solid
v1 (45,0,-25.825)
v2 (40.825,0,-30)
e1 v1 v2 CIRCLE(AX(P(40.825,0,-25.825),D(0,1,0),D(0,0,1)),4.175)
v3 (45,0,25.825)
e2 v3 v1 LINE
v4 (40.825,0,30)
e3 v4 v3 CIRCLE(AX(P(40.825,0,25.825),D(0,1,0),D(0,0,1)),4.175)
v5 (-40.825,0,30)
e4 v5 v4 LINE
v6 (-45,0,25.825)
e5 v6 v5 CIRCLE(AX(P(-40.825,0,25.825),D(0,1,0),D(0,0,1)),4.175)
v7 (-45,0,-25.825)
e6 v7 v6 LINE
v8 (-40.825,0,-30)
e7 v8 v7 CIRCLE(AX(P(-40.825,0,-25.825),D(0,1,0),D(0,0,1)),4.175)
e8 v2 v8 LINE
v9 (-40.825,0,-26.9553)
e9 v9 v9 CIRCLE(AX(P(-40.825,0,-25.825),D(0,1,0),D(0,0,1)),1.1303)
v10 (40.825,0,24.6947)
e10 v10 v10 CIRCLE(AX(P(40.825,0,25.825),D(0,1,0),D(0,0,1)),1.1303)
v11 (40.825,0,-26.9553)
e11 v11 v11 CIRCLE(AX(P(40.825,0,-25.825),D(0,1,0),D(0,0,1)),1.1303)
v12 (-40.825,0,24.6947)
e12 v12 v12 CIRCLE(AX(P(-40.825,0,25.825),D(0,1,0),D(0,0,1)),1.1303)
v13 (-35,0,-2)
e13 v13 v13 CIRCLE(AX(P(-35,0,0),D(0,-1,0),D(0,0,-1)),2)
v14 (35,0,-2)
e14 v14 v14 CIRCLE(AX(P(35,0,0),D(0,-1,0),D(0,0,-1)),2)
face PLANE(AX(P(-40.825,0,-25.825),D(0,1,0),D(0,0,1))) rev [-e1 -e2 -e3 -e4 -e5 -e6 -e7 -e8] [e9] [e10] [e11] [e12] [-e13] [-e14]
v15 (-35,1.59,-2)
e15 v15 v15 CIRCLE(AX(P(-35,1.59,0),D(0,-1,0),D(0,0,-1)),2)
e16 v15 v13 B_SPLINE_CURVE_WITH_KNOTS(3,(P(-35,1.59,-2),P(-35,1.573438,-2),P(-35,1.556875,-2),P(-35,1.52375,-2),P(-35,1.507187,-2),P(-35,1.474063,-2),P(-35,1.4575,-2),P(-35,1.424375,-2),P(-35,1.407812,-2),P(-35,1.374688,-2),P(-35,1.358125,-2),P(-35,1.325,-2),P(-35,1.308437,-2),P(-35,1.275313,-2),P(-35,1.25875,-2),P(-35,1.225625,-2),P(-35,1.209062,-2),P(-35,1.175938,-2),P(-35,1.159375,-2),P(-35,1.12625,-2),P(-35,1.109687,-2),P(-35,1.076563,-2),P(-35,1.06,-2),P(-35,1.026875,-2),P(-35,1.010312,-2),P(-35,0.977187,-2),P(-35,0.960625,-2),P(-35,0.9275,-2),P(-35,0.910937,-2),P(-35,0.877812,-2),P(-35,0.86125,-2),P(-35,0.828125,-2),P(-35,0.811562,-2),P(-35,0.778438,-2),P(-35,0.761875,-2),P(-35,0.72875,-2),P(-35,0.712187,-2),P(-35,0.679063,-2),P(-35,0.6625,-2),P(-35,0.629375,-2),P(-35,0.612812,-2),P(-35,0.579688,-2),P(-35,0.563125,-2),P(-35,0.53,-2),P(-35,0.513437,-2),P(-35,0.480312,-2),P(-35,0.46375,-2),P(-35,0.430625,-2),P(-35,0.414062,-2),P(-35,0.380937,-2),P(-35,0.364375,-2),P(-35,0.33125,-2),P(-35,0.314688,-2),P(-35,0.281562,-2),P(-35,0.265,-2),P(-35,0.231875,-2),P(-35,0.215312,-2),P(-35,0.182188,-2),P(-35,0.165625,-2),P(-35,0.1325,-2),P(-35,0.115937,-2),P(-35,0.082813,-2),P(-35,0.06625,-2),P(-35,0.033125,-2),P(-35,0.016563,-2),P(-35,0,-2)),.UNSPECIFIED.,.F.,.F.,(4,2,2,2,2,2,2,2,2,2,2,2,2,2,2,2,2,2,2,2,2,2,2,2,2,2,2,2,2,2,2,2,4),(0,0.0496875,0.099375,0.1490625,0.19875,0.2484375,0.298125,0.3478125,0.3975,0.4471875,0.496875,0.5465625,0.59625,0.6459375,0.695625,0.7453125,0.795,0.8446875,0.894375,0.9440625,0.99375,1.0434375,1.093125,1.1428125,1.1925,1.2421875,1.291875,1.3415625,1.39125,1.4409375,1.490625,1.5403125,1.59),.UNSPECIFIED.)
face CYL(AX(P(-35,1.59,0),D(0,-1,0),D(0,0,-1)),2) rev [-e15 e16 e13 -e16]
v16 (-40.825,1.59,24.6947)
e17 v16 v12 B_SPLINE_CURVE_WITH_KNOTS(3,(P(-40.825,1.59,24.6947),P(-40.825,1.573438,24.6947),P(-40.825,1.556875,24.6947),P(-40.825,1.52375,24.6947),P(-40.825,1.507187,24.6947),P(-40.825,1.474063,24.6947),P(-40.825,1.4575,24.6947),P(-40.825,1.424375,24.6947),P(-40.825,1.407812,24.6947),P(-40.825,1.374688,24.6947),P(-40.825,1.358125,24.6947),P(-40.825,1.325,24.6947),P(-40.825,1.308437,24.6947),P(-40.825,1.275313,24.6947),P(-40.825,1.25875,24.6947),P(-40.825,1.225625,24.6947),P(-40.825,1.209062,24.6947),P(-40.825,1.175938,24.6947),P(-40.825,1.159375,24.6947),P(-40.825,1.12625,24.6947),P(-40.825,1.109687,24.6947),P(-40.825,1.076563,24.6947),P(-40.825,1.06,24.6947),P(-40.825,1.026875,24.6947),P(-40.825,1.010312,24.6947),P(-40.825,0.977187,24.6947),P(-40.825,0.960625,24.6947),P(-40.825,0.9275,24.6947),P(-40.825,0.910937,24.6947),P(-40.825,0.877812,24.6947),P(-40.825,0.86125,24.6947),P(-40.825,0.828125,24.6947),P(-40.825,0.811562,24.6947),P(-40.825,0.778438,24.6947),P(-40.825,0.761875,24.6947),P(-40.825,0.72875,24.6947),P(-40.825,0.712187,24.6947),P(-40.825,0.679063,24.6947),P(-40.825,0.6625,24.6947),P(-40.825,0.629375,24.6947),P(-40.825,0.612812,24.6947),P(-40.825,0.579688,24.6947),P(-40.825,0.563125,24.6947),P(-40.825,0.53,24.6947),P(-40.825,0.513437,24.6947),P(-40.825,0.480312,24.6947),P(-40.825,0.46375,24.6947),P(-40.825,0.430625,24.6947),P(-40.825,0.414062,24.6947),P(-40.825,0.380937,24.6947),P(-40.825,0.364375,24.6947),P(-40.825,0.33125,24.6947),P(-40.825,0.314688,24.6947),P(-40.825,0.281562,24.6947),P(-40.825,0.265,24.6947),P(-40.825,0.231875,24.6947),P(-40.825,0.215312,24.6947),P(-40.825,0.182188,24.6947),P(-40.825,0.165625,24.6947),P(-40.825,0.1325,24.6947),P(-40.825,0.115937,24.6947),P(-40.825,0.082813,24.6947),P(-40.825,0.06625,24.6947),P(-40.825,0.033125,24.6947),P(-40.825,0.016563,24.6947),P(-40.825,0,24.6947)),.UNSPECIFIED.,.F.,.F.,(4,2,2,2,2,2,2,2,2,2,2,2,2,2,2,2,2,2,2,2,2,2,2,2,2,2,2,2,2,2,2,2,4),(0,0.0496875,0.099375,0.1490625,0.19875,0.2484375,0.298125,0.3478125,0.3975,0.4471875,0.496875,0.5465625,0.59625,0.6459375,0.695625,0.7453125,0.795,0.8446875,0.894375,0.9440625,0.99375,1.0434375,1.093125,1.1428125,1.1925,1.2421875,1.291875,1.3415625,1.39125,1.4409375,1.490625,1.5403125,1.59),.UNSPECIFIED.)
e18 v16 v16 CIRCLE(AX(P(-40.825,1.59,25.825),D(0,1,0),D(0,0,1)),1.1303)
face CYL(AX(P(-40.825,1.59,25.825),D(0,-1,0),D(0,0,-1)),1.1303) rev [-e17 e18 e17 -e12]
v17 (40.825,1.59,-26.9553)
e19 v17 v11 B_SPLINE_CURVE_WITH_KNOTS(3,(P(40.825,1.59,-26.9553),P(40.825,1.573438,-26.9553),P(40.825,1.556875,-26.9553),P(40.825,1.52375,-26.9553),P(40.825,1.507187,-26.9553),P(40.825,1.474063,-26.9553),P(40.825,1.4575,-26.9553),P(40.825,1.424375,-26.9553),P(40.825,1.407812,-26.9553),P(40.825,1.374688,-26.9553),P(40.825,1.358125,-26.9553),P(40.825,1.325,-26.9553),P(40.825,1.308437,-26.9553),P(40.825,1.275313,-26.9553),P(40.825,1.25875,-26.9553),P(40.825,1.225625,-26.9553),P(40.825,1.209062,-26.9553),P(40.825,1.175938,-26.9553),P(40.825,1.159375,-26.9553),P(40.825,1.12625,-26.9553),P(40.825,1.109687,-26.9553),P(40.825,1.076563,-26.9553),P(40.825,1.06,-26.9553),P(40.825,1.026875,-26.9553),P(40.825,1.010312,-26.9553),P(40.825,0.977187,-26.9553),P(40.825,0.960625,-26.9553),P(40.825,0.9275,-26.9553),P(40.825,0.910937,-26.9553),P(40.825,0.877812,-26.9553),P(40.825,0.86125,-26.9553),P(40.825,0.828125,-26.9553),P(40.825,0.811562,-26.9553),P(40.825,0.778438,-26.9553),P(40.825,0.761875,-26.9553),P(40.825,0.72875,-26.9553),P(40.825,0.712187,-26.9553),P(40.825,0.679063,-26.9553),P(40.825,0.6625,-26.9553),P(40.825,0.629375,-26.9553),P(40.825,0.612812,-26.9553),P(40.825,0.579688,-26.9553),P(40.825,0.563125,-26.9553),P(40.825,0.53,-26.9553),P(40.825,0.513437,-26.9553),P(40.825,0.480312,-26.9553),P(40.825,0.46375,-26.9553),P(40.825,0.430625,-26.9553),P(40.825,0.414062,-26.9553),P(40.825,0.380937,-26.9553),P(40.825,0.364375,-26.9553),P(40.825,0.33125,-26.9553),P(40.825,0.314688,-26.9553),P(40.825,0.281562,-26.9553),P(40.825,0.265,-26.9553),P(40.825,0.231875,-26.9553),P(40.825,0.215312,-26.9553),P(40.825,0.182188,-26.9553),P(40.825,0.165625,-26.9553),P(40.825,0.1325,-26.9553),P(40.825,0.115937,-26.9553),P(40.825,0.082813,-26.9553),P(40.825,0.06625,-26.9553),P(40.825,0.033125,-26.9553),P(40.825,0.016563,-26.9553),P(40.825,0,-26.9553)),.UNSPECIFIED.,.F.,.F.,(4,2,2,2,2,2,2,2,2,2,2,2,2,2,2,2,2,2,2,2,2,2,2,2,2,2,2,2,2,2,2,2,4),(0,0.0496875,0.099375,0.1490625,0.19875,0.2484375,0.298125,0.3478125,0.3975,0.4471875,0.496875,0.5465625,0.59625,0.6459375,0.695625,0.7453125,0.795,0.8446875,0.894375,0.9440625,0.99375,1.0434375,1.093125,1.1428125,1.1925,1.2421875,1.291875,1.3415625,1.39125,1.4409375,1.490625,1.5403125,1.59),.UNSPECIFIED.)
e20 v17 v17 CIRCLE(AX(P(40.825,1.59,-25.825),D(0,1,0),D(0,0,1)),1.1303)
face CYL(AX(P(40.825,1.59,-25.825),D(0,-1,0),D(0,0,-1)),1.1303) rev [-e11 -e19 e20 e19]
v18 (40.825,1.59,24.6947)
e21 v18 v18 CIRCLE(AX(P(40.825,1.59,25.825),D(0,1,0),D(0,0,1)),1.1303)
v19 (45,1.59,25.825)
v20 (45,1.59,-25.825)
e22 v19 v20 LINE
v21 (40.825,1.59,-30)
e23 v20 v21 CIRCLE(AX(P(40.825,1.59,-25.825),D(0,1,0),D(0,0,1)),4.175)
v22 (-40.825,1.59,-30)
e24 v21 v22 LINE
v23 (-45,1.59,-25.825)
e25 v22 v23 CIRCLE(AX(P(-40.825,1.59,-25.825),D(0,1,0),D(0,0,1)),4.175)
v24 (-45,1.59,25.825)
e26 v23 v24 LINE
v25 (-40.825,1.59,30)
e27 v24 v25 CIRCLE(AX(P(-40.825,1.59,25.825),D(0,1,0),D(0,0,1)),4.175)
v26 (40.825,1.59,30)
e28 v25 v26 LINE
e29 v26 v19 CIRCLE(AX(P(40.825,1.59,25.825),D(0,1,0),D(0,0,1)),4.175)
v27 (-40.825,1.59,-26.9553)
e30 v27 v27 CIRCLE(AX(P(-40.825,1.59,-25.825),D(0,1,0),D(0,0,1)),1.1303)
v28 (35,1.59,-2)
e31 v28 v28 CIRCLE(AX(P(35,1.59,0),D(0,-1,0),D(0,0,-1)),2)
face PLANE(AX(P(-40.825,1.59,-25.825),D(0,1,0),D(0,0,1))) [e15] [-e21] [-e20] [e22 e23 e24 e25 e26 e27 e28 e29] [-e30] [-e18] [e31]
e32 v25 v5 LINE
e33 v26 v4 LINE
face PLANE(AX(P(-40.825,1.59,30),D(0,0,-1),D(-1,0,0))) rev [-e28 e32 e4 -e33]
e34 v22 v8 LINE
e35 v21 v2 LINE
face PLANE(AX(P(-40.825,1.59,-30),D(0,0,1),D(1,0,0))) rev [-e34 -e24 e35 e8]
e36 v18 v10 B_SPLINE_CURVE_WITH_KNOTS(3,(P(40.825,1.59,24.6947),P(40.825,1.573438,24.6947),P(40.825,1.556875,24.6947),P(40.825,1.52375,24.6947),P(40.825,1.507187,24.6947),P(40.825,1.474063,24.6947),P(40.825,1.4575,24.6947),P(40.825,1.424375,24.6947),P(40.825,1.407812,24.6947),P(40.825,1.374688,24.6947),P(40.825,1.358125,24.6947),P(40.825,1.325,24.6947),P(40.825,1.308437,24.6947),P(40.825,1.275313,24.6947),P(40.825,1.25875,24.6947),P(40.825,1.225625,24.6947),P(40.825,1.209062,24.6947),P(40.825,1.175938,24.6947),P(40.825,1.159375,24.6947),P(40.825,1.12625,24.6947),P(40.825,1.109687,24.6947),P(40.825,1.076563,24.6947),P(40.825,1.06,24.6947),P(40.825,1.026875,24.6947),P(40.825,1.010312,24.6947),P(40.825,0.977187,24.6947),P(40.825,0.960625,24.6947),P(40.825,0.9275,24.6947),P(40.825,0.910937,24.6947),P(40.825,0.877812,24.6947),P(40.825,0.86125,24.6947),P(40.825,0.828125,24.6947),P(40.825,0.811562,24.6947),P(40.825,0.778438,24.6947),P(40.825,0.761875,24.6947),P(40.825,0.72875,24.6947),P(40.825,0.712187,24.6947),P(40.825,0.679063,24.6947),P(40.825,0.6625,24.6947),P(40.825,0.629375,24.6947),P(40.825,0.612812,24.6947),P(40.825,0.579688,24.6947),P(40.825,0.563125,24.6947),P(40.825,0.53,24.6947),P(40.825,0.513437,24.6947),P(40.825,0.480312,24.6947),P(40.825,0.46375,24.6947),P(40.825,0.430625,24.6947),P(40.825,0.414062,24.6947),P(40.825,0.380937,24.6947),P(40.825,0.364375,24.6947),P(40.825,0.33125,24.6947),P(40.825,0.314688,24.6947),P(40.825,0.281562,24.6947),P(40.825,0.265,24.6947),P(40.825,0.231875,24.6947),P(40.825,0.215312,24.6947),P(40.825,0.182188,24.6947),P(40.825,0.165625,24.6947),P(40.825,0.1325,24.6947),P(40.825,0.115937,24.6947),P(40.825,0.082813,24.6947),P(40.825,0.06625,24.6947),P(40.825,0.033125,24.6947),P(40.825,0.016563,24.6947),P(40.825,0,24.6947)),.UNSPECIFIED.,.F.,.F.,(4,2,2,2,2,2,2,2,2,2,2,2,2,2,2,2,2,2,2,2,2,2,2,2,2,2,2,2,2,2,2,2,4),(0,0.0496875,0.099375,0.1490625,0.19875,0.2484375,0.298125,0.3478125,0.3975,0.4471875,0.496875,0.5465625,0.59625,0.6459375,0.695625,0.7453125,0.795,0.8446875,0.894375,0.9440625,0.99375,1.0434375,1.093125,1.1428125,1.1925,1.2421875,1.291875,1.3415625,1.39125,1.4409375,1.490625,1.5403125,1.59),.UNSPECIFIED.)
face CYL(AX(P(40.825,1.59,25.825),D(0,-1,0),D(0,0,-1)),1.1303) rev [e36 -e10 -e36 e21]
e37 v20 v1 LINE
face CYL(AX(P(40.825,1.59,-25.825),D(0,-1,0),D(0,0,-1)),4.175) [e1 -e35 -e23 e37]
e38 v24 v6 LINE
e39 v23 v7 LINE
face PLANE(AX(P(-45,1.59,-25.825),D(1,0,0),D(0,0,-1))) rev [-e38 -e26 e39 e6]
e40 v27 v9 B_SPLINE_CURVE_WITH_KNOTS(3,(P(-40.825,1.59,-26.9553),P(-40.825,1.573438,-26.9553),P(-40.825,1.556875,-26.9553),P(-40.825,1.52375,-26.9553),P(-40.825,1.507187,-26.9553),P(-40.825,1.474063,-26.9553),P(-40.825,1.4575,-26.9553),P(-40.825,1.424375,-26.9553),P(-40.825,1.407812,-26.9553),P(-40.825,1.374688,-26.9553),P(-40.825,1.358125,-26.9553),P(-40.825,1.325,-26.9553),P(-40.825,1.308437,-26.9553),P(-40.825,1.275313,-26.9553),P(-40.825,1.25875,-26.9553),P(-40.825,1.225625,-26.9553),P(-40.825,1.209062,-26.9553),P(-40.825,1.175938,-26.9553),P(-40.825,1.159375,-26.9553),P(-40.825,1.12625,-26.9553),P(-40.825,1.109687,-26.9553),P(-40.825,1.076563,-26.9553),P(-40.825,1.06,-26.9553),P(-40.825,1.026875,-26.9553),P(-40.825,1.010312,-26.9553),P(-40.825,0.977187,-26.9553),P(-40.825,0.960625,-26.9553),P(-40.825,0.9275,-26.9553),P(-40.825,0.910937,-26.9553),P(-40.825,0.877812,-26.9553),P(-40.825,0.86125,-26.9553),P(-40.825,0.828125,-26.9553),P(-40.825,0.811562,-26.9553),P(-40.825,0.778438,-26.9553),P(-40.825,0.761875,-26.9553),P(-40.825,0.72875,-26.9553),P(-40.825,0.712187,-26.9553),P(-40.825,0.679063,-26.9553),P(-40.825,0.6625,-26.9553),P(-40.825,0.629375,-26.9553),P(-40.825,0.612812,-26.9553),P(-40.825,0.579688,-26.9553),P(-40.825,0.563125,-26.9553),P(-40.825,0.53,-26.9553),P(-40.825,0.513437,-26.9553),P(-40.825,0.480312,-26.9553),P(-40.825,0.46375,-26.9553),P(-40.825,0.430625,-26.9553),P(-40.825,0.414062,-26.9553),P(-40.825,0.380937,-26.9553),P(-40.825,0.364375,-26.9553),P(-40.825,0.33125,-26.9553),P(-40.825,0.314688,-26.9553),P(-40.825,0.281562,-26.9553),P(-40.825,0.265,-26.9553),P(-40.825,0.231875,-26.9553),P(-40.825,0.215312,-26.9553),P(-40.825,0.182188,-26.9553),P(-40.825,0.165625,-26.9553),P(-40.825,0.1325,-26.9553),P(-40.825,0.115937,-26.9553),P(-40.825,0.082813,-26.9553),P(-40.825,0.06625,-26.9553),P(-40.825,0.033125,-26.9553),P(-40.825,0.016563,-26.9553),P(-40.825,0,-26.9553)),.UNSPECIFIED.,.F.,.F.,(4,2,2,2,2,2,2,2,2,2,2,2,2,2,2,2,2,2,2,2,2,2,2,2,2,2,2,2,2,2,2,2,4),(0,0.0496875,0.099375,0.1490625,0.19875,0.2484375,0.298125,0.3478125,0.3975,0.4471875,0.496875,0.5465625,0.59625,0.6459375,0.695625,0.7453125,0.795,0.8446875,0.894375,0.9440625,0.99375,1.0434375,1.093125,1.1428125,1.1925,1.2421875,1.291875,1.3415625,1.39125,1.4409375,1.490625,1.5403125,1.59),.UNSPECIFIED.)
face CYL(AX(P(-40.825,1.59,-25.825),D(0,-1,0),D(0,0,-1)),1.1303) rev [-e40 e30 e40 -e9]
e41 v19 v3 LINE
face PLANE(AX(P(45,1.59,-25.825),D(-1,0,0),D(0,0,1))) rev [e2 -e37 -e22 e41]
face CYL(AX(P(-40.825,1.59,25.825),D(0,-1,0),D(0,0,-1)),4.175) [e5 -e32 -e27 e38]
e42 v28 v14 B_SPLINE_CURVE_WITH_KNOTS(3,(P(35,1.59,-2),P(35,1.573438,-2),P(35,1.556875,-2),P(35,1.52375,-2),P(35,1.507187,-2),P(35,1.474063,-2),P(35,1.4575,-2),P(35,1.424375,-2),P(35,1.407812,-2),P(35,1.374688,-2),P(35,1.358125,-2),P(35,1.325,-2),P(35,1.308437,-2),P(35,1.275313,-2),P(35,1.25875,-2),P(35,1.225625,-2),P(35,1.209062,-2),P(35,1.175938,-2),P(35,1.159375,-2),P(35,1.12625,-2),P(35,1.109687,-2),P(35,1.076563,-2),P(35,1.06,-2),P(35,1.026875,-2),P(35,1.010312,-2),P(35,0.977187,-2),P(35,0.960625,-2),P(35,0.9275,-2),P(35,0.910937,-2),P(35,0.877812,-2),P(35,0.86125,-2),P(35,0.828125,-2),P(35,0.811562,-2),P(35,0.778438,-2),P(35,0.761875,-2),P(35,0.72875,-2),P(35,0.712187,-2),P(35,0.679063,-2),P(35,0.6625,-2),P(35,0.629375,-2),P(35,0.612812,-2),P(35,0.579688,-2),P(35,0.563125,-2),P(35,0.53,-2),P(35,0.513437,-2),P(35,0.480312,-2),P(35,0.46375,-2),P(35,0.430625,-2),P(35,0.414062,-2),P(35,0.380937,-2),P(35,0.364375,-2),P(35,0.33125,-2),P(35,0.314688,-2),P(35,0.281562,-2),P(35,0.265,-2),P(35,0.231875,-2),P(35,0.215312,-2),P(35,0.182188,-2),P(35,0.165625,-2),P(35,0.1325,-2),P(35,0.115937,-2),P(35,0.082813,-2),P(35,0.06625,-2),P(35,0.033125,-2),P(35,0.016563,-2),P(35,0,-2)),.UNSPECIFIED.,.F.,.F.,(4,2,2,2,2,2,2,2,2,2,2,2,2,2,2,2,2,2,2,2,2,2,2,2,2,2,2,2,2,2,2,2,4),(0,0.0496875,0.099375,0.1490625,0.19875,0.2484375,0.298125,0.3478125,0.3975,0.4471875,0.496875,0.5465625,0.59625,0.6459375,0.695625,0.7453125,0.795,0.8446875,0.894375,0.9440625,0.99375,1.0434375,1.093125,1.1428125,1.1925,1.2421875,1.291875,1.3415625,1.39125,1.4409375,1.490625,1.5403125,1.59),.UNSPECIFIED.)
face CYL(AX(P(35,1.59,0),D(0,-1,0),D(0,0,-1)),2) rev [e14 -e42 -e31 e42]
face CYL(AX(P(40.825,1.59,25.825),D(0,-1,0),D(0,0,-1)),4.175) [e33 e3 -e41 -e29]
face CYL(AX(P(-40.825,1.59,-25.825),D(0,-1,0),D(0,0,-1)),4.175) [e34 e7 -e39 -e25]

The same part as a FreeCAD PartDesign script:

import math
import FreeCAD as App
import Part
import Sketcher

doc = App.newDocument("Part")
body = doc.addObject("PartDesign::Body", "Body")

# Sketch on XZ plane
sketch1 = doc.addObject("Sketcher::SketchObject", "Sketch")
body.addObject(sketch1)
sketch1.AttachmentSupport = (doc.XZ_Plane, [""])
sketch1.MapMode = "FlatFace"
sketch1.addGeometry(Part.LineSegment(App.Vector(-45, -25.825, 0), App.Vector(-45, 25.825, 0)), False)
sketch1.addGeometry(Part.ArcOfCircle(Part.Circle(App.Vector(-40.825, 25.825, 0), App.Vector(0, 0, 1), 4.175), math.radians(90), math.radians(180)), False)
sketch1.addGeometry(Part.LineSegment(App.Vector(-40.825, 30, 0), App.Vector(40.825, 30, 0)), False)
sketch1.addGeometry(Part.ArcOfCircle(Part.Circle(App.Vector(40.825, 25.825, 0), App.Vector(0, 0, 1), 4.175), math.radians(0), math.radians(90)), False)
sketch1.addGeometry(Part.LineSegment(App.Vector(45, 25.825, 0), App.Vector(45, -25.825, 0)), False)
sketch1.addGeometry(Part.ArcOfCircle(Part.Circle(App.Vector(40.825, -25.825, 0), App.Vector(0, 0, 1), 4.175), math.radians(-90), math.radians(0)), False)
sketch1.addGeometry(Part.LineSegment(App.Vector(40.825, -30, 0), App.Vector(-40.825, -30, 0)), False)
sketch1.addGeometry(Part.ArcOfCircle(Part.Circle(App.Vector(-40.825, -25.825, 0), App.Vector(0, 0, 1), 4.175), math.radians(-180), math.radians(-90)), False)
sketch1.addGeometry(Part.Circle(App.Vector(-40.825, 25.825, 0), App.Vector(0, 0, 1), 1.1303), False)
sketch1.addGeometry(Part.Circle(App.Vector(40.825, 25.825, 0), App.Vector(0, 0, 1), 1.1303), False)
sketch1.addGeometry(Part.Circle(App.Vector(-40.825, -25.825, 0), App.Vector(0, 0, 1), 1.1303), False)
sketch1.addGeometry(Part.Circle(App.Vector(40.825, -25.825, 0), App.Vector(0, 0, 1), 1.1303), False)
sketch1.addConstraint(Sketcher.Constraint("Tangent", 0, 2, 1, 2))
sketch1.addConstraint(Sketcher.Constraint("Tangent", 1, 1, 2, 1))
sketch1.addConstraint(Sketcher.Constraint("Tangent", 2, 2, 3, 2))
sketch1.addConstraint(Sketcher.Constraint("Tangent", 3, 1, 4, 1))
sketch1.addConstraint(Sketcher.Constraint("Tangent", 4, 2, 5, 2))
sketch1.addConstraint(Sketcher.Constraint("Tangent", 5, 1, 6, 1))
sketch1.addConstraint(Sketcher.Constraint("Tangent", 6, 2, 7, 2))
sketch1.addConstraint(Sketcher.Constraint("Tangent", 7, 1, 0, 1))
sketch1.addConstraint(Sketcher.Constraint("Vertical", 0))
sketch1.addConstraint(Sketcher.Constraint("Horizontal", 2))
sketch1.addConstraint(Sketcher.Constraint("Vertical", 4))
sketch1.addConstraint(Sketcher.Constraint("Horizontal", 6))
sketch1.addConstraint(Sketcher.Constraint("Coincident", 8, 3, 1, 3))
sketch1.addConstraint(Sketcher.Constraint("Coincident", 9, 3, 3, 3))
sketch1.addConstraint(Sketcher.Constraint("Coincident", 10, 3, 7, 3))
sketch1.addConstraint(Sketcher.Constraint("Coincident", 11, 3, 5, 3))
sketch1.addConstraint(Sketcher.Constraint("Equal", 1, 3))
sketch1.addConstraint(Sketcher.Constraint("Equal", 3, 5))
sketch1.addConstraint(Sketcher.Constraint("Equal", 5, 7))
sketch1.addConstraint(Sketcher.Constraint("Equal", 8, 9))
sketch1.addConstraint(Sketcher.Constraint("Equal", 9, 10))
sketch1.addConstraint(Sketcher.Constraint("Equal", 10, 11))
sketch1.addConstraint(Sketcher.Constraint("Symmetric", 1, 3, 5, 3, -1, 1))
sketch1.addConstraint(Sketcher.Constraint("DistanceX", 0, 2, -1, 1, 45.0))
sketch1.addConstraint(Sketcher.Constraint("DistanceY", -1, 1, 1, 1, 30.0))
sketch1.addConstraint(Sketcher.Constraint("Radius", 1, 4.175))
sketch1.addConstraint(Sketcher.Constraint("Diameter", 8, 2.2606))
pad1 = doc.addObject("PartDesign::Pad", "Pad")
body.addObject(pad1)
pad1.Profile = sketch1
pad1.Length = 1.59
pad1.Reversed = True

# Sketch on XZ plane
sketch2 = doc.addObject("Sketcher::SketchObject", "Sketch001")
body.addObject(sketch2)
sketch2.AttachmentSupport = (doc.XZ_Plane, [""])
sketch2.MapMode = "FlatFace"
sketch2.addGeometry(Part.Circle(App.Vector(-35, 0, 0), App.Vector(0, 0, 1), 2), False)
sketch2.addGeometry(Part.Circle(App.Vector(35, 0, 0), App.Vector(0, 0, 1), 2), False)
sketch2.addConstraint(Sketcher.Constraint("Equal", 0, 1))
sketch2.addConstraint(Sketcher.Constraint("Symmetric", 0, 3, 1, 3, -1, 1))
sketch2.addConstraint(Sketcher.Constraint("PointOnObject", 0, 3, -1))
sketch2.addConstraint(Sketcher.Constraint("Diameter", 0, 4.0))
sketch2.addConstraint(Sketcher.Constraint("DistanceX", 0, 3, -1, 1, 35.0))
pocket1 = doc.addObject("PartDesign::Pocket", "Pocket")
body.addObject(pocket1)
pocket1.Profile = sketch2
pocket1.Length = 1.59

doc.recompute()
